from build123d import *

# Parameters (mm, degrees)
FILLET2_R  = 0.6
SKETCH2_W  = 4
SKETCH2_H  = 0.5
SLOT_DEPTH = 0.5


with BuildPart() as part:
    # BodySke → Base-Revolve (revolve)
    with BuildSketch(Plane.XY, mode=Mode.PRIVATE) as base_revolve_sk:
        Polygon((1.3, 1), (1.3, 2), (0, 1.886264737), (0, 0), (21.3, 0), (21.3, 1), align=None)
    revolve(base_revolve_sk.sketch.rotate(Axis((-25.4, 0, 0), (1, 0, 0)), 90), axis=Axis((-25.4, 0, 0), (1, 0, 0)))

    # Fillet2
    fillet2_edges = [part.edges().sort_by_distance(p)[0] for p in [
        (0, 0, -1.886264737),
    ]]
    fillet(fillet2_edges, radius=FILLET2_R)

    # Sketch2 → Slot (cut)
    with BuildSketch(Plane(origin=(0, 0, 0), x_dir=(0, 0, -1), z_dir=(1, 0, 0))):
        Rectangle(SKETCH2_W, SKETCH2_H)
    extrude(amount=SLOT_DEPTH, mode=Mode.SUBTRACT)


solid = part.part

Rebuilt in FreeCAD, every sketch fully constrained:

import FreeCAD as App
import Part
import Sketcher
from FreeCAD import Vector
Q = App.Units.Quantity


def edges_at(feature, points):
    """Names of the edges that pass closest to the given points."""
    edges = feature.Shape.Edges
    near = lambda p: min(range(len(edges)), key=lambda i: edges[i].distToShape(Part.Vertex(*p))[0])
    return sorted({f"Edge{near(p) + 1}" for p in points})

doc = App.newDocument("Part")
params = doc.addObject("Spreadsheet::Sheet", "Params")
for row, (alias, value) in enumerate([
    ("sketch1_width", "20 mm"),
    ("sketch1_height", "1 mm"),
    ("sketch1_width2", "21.3 mm"),
    ("revolution_angle", "360 deg"),
    ("fillet_radius", "0.6 mm"),
    ("sketch2_height", "4 mm"),
    ("sketch2_width", "0.5 mm"),
    ("pocket1_length", "0.5 mm"),
], start=1):
    params.set(f"A{row}", alias)
    params.set(f"B{row}", "=" + value)
    params.setAlias(f"B{row}", alias)

body = doc.addObject("PartDesign::Body", "Body")

sketch1 = body.newObject("Sketcher::SketchObject", "Sketch")
sketch1.AttachmentSupport = (doc.getObject("XY_Plane"), [""])
sketch1.MapMode = "FlatFace"
sketch1.addGeometry([
    Part.LineSegment(Vector(1.3, 1, 0), Vector(1.3, 2, 0)),
    Part.LineSegment(Vector(1.3, 2, 0), Vector(0, 1.9, 0)),
    Part.LineSegment(Vector(0, 1.9, 0), Vector(0, 0, 0)),
    Part.LineSegment(Vector(0, 0, 0), Vector(21.3, 0, 0)),
    Part.LineSegment(Vector(21.3, 0, 0), Vector(21.3, 1, 0)),
    Part.LineSegment(Vector(21.3, 1, 0), Vector(1.3, 1, 0)),
], False)
sketch1.addConstraint([
    Sketcher.Constraint("Coincident", 0, 2, 1, 1),
    Sketcher.Constraint("Coincident", 1, 2, 2, 1),
    Sketcher.Constraint("Coincident", 2, 2, 3, 1),
    Sketcher.Constraint("Coincident", 3, 2, 4, 1),
    Sketcher.Constraint("Coincident", 4, 2, 5, 1),
    Sketcher.Constraint("Coincident", 5, 2, 0, 1),
    Sketcher.Constraint("Vertical", 0),
    Sketcher.Constraint("Vertical", 2),
    Sketcher.Constraint("Horizontal", 3),
    Sketcher.Constraint("Vertical", 4),
    Sketcher.Constraint("Horizontal", 5),
    Sketcher.Constraint("Coincident", 2, 2, -1, 1),
    Sketcher.Constraint("Equal", 0, 4),
    Sketcher.Constraint("DistanceX", 5, 2, 5, 1, Q("20 mm")),
    Sketcher.Constraint("DistanceY", 0, 1, 0, 2, Q("1 mm")),
    Sketcher.Constraint("Angle", 1, Q("-175 deg")),
    Sketcher.Constraint("DistanceX", 3, 1, 3, 2, Q("21.3 mm")),
])
sketch1.setExpression("Constraints[13]", "Params.sketch1_width")
sketch1.setExpression("Constraints[14]", "Params.sketch1_height")
sketch1.setExpression("Constraints[16]", "Params.sketch1_width2")
revolution = body.newObject("PartDesign::Revolution", "Revolution")
revolution.Profile = sketch1
revolution.ReferenceAxis = (sketch1, ["H_Axis"])
revolution.setExpression("Angle", "Params.revolution_angle")
doc.recompute()

fillet = body.newObject("PartDesign::Fillet", "Fillet")
fillet.Base = (revolution, edges_at(revolution, [(0, 0, -1.886)]))
fillet.setExpression("Radius", "Params.fillet_radius")

sketch2 = body.newObject("Sketcher::SketchObject", "Sketch001")
sketch2.AttachmentSupport = (doc.getObject("YZ_Plane"), [""])
sketch2.MapMode = "FlatFace"
sketch2.addGeometry([
    Part.LineSegment(Vector(0.2, 2, 0), Vector(-0.2, 2, 0)),
    Part.LineSegment(Vector(-0.2, 2, 0), Vector(-0.2, -2, 0)),
    Part.LineSegment(Vector(-0.2, -2, 0), Vector(0.2, -2, 0)),
    Part.LineSegment(Vector(0.2, -2, 0), Vector(0.2, 2, 0)),
], False)
sketch2.addConstraint([
    Sketcher.Constraint("Coincident", 0, 2, 1, 1),
    Sketcher.Constraint("Coincident", 1, 2, 2, 1),
    Sketcher.Constraint("Coincident", 2, 2, 3, 1),
    Sketcher.Constraint("Coincident", 3, 2, 0, 1),
    Sketcher.Constraint("Horizontal", 0),
    Sketcher.Constraint("Vertical", 1),
    Sketcher.Constraint("Horizontal", 2),
    Sketcher.Constraint("Vertical", 3),
    Sketcher.Constraint("Symmetric", 0, 2, 2, 2, -1, 1),
    Sketcher.Constraint("DistanceY", 1, 2, 1, 1, Q("4 mm")),
    Sketcher.Constraint("DistanceX", 0, 2, 0, 1, Q("0.5 mm")),
])
sketch2.setExpression("Constraints[9]", "Params.sketch2_height")
sketch2.setExpression("Constraints[10]", "Params.sketch2_width")
pocket1 = body.newObject("PartDesign::Pocket", "Pocket")
pocket1.Profile = sketch2
pocket1.setExpression("Length", "Params.pocket1_length")
pocket1.Reversed = True

doc.recompute()
